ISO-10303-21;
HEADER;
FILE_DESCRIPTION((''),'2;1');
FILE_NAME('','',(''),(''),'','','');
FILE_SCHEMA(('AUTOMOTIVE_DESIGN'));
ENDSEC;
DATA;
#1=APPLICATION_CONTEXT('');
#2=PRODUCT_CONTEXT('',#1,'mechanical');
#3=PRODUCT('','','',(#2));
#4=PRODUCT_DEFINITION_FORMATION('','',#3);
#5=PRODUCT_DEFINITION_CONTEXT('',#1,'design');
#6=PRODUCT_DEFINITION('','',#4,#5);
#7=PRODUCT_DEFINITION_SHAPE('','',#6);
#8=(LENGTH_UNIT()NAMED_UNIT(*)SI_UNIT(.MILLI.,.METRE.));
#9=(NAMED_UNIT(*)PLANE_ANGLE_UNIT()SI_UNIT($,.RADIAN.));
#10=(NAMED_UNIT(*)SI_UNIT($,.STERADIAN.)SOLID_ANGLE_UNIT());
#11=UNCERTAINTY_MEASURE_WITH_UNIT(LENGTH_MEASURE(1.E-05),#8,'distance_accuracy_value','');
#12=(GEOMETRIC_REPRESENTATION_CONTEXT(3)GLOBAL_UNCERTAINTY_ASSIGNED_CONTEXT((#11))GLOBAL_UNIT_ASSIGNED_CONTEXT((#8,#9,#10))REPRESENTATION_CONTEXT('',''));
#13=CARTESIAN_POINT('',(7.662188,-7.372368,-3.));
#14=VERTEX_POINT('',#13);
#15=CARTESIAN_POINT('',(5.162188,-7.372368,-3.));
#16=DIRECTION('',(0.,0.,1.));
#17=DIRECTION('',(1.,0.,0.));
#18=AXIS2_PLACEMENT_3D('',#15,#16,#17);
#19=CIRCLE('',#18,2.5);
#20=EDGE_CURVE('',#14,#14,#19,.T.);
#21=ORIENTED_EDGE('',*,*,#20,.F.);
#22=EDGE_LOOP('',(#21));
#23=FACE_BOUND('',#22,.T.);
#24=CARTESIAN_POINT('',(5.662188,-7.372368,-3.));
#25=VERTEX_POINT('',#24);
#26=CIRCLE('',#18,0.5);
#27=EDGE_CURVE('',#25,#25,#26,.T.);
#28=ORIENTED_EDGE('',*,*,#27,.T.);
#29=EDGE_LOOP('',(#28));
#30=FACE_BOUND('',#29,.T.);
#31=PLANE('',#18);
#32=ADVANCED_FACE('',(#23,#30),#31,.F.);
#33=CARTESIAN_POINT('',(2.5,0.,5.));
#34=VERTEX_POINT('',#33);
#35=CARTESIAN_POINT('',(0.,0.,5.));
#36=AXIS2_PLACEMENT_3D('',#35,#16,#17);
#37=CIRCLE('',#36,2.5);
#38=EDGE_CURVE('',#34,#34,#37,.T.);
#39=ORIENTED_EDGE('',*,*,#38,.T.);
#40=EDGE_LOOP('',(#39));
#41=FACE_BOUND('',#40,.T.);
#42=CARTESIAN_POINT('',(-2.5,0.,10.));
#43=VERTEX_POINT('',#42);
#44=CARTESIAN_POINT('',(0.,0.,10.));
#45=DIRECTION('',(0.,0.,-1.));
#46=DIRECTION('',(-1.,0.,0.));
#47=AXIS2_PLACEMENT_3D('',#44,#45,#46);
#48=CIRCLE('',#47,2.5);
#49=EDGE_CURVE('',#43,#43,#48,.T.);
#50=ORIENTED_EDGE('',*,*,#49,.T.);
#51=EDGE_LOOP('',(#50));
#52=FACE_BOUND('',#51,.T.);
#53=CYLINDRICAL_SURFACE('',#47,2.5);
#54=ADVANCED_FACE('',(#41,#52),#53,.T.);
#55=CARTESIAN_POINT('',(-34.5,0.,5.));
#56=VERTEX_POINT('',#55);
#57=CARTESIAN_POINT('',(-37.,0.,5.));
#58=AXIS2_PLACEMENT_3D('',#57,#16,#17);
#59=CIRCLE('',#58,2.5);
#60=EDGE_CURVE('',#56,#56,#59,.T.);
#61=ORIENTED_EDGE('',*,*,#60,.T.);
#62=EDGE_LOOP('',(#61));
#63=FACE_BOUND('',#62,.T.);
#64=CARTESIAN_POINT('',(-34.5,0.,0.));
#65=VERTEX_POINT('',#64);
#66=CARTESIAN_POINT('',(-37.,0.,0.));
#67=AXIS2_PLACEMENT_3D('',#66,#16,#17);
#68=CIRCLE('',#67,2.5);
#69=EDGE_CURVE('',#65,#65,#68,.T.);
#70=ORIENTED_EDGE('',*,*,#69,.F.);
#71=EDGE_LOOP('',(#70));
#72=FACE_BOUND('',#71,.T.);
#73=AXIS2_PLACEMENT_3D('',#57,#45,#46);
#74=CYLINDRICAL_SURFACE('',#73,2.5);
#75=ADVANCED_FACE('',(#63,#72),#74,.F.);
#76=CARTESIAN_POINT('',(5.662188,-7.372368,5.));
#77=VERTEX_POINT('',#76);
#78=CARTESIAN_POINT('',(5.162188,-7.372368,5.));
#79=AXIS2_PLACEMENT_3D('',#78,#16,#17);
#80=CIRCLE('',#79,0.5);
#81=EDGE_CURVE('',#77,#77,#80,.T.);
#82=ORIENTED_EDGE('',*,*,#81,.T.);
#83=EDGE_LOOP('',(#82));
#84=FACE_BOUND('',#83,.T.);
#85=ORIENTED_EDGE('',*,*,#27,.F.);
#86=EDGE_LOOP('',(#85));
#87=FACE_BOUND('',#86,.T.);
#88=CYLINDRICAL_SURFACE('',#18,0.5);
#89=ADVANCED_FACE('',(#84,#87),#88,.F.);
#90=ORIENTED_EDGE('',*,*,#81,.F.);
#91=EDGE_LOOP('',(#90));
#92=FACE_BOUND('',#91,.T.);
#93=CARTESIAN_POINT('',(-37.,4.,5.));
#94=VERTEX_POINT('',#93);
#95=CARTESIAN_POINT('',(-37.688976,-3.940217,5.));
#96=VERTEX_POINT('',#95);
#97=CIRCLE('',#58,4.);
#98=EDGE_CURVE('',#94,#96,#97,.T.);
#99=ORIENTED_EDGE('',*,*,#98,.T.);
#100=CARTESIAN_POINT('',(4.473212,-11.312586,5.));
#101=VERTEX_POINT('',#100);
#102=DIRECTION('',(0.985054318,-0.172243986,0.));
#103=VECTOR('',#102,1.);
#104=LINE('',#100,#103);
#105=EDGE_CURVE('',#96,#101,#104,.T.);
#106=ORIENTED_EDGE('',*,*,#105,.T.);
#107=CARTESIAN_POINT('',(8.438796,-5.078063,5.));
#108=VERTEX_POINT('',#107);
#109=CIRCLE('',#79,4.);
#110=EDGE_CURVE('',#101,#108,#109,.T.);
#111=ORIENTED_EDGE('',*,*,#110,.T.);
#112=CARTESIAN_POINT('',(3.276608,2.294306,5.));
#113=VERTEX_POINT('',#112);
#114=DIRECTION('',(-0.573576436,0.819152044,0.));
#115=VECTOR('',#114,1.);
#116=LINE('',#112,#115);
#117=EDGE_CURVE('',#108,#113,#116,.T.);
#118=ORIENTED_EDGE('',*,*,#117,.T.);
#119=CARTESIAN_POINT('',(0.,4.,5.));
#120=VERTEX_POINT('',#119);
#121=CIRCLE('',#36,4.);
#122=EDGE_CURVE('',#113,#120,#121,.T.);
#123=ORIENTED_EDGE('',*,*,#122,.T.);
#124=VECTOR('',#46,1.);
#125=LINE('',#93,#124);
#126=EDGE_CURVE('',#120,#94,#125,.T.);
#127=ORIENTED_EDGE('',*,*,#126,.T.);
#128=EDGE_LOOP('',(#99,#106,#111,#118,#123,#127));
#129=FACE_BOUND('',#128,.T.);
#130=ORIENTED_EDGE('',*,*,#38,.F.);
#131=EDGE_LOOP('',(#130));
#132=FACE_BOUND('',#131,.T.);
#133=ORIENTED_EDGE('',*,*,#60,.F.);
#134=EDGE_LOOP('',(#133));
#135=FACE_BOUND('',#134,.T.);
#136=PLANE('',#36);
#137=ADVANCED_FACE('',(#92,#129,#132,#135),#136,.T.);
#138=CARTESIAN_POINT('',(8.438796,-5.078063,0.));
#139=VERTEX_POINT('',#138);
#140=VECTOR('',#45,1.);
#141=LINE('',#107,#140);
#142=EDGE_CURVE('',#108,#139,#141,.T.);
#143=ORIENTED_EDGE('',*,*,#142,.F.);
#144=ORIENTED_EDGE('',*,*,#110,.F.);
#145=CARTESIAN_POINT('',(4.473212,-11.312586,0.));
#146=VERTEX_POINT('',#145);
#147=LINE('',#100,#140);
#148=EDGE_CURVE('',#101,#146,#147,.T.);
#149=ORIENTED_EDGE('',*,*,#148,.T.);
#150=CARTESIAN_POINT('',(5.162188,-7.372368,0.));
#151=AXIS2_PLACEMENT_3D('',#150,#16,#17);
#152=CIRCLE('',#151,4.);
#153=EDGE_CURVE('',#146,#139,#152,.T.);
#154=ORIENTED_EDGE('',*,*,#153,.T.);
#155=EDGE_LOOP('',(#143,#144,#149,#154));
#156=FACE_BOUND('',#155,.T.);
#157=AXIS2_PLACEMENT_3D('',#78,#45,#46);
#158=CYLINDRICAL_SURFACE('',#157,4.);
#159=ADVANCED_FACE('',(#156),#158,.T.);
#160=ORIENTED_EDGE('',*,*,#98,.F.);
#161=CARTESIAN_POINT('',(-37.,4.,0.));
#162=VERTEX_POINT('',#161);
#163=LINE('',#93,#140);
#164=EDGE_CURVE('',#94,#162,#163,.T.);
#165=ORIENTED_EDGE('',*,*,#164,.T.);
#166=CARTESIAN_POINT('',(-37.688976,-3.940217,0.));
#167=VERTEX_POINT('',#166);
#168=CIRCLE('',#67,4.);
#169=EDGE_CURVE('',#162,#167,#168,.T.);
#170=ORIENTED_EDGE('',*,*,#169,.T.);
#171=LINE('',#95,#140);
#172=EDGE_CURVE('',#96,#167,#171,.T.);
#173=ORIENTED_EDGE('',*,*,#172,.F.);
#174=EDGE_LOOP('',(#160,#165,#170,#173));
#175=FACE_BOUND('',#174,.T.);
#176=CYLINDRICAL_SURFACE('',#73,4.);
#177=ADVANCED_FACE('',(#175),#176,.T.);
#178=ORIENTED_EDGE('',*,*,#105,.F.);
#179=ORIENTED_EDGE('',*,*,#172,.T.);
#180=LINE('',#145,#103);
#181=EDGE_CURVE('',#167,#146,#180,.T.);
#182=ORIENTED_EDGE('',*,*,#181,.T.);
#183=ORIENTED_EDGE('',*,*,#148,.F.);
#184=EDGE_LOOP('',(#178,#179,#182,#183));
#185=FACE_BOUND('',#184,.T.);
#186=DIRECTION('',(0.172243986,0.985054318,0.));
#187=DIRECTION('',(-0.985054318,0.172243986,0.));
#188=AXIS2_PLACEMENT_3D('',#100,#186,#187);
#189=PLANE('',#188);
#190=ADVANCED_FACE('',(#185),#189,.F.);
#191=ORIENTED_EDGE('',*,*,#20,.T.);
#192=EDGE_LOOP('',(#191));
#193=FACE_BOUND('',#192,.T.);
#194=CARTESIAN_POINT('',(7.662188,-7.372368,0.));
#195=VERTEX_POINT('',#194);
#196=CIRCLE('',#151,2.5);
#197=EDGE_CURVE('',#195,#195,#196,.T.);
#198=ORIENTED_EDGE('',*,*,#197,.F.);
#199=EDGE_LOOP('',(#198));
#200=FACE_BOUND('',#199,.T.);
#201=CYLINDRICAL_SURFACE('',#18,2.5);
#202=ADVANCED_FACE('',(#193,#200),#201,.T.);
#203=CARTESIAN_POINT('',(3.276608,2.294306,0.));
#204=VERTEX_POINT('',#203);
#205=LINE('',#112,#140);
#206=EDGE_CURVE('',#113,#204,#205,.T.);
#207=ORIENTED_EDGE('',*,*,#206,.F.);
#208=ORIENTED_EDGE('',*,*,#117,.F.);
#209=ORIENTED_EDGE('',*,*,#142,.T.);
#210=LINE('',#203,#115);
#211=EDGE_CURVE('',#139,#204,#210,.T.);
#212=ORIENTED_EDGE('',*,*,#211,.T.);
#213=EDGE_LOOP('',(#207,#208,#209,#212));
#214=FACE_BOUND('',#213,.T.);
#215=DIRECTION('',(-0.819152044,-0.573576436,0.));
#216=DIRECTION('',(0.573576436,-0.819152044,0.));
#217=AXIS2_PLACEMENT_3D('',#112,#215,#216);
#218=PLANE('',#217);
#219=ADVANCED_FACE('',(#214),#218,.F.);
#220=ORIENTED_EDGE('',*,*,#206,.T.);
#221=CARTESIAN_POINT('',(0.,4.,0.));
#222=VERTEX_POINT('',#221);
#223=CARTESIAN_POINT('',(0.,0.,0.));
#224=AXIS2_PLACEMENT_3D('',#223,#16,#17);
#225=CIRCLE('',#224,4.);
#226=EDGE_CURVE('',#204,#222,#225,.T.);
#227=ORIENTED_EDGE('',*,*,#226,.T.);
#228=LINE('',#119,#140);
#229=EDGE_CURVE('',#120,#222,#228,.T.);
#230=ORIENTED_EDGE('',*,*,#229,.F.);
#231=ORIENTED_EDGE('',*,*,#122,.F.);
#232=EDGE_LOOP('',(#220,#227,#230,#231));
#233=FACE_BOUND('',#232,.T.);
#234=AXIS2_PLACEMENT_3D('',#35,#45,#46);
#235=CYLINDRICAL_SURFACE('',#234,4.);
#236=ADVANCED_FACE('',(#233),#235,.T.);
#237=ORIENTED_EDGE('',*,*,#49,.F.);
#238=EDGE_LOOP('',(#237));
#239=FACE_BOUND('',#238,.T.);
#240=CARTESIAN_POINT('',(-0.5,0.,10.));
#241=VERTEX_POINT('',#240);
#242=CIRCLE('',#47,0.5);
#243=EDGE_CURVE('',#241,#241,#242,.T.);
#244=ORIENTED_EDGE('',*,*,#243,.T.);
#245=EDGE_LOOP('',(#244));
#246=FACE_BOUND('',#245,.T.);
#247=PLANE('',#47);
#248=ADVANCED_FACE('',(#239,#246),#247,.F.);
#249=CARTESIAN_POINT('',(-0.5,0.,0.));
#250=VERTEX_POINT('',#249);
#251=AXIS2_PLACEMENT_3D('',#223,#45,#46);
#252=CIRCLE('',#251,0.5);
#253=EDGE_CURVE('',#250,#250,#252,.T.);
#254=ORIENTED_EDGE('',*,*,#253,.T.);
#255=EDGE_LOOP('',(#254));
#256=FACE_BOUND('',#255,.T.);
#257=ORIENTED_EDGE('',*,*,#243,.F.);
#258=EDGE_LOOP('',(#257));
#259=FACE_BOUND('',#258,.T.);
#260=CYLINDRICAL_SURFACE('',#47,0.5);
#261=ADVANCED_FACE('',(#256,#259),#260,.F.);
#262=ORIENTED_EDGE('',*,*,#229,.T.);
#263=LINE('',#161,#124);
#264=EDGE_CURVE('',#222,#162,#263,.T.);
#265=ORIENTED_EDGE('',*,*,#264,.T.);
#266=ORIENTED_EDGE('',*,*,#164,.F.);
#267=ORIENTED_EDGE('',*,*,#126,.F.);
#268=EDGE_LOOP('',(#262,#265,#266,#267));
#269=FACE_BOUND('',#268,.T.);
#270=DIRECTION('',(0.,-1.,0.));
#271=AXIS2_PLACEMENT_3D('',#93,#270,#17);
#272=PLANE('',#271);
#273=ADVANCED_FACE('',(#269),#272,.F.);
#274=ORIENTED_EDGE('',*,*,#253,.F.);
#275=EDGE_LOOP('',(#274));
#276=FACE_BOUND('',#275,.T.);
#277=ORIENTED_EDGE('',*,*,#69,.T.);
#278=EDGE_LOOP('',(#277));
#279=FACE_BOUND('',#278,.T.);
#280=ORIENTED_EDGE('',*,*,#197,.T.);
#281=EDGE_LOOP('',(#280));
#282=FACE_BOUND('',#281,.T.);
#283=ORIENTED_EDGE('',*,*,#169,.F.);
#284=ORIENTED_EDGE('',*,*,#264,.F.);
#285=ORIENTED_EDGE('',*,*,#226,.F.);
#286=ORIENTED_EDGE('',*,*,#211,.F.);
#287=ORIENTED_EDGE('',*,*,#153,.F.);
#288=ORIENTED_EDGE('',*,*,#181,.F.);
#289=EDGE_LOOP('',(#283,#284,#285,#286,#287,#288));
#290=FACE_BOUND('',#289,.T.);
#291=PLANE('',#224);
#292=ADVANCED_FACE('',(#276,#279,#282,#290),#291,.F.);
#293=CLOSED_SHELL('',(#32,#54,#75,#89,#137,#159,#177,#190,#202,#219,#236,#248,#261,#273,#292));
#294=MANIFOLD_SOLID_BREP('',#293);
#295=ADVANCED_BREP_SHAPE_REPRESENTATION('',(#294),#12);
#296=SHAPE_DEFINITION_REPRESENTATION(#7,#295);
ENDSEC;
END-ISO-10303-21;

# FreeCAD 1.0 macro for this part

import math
import FreeCAD as App
import Part
import Sketcher
from FreeCAD import Vector
Q = App.Units.Quantity

doc = App.newDocument("Part")
body = doc.addObject("PartDesign::Body", "Body")

# Sketch on XY plane
sketch1 = doc.addObject("Sketcher::SketchObject", "Sketch")
body.addObject(sketch1)
sketch1.AttachmentSupport = (doc.XY_Plane, [""])
sketch1.MapMode = "FlatFace"
sketch1.addGeometry(Part.LineSegment(Vector(0, 4, 0), Vector(-37, 4, 0)), False)
sketch1.addGeometry(Part.ArcOfCircle(Part.Circle(Vector(-37, 0, 0), Vector(0, 0, 1), 4), math.radians(90), math.radians(260)), False)
sketch1.addGeometry(Part.LineSegment(Vector(-37.7, -3.9, 0), Vector(4.5, -11.3, 0)), False)
sketch1.addGeometry(Part.ArcOfCircle(Part.Circle(Vector(5.2, -7.4, 0), Vector(0, 0, 1), 4), math.radians(-100), math.radians(35)), False)
sketch1.addGeometry(Part.LineSegment(Vector(8.4, -5.1, 0), Vector(3.3, 2.3, 0)), False)
sketch1.addGeometry(Part.ArcOfCircle(Part.Circle(Vector(0, 0, 0), Vector(0, 0, 1), 4), math.radians(35), math.radians(90)), False)
sketch1.addGeometry(Part.Circle(Vector(5.2, -7.4, 0), Vector(0, 0, 1), 2.5), False)
sketch1.addGeometry(Part.Circle(Vector(0, 0, 0), Vector(0, 0, 1), 2.5), False)
sketch1.addGeometry(Part.Circle(Vector(-37, 0, 0), Vector(0, 0, 1), 2.5), False)
sketch1.addConstraint(Sketcher.Constraint("Tangent", 0, 2, 1, 1))
sketch1.addConstraint(Sketcher.Constraint("Tangent", 1, 2, 2, 1))
sketch1.addConstraint(Sketcher.Constraint("Tangent", 2, 2, 3, 1))
sketch1.addConstraint(Sketcher.Constraint("Tangent", 3, 2, 4, 1))
sketch1.addConstraint(Sketcher.Constraint("Tangent", 4, 2, 5, 1))
sketch1.addConstraint(Sketcher.Constraint("Tangent", 5, 2, 0, 1))
sketch1.addConstraint(Sketcher.Constraint("Horizontal", 0))
sketch1.addConstraint(Sketcher.Constraint("Coincident", 5, 3, -1, 1))
sketch1.addConstraint(Sketcher.Constraint("Coincident", 7, 3, -1, 1))
sketch1.addConstraint(Sketcher.Constraint("Coincident", 6, 3, 3, 3))
sketch1.addConstraint(Sketcher.Constraint("Coincident", 8, 3, 1, 3))
sketch1.addConstraint(Sketcher.Constraint("Equal", 1, 3))
sketch1.addConstraint(Sketcher.Constraint("Equal", 3, 5))
sketch1.addConstraint(Sketcher.Constraint("Equal", 6, 7))
sketch1.addConstraint(Sketcher.Constraint("Equal", 7, 8))
sketch1.addConstraint(Sketcher.Constraint("Diameter", 6, 5.0))
sketch1.addConstraint(Sketcher.Constraint("Radius", 1, 4.0))
sketch1.addConstraint(Sketcher.Constraint("DistanceX", 0, 2, 0, 1, 37.0))
sketch1.addConstraint(Sketcher.Constraint("Angle", 4, Q("125 deg")))
sketch1.addConstraint(Sketcher.Constraint("Distance", 4, 9.0))
pad1 = doc.addObject("PartDesign::Pad", "Pad")
body.addObject(pad1)
pad1.Profile = sketch1
pad1.Length = 5

# Sketch on XY plane
sketch2 = doc.addObject("Sketcher::SketchObject", "Sketch001")
body.addObject(sketch2)
sketch2.AttachmentSupport = (doc.XY_Plane, [""])
sketch2.MapMode = "FlatFace"
sketch2.AttachmentOffset = App.Placement(Vector(0, 0, -3), App.Rotation())
sketch2.addGeometry(Part.Circle(Vector(5.2, -7.4, 0), Vector(0, 0, 1), 2.5), False)
sketch2.addGeometry(Part.Circle(Vector(5.2, -7.4, 0), Vector(0, 0, 1), 0.5), False)
sketch2.addConstraint(Sketcher.Constraint("Coincident", 1, 3, 0, 3))
sketch2.addConstraint(Sketcher.Constraint("Diameter", 0, 5.0))
sketch2.addConstraint(Sketcher.Constraint("Diameter", 1, 1.0))
sketch2.addConstraint(Sketcher.Constraint("DistanceY", 0, 3, -1, 1, 7.372368))
sketch2.addConstraint(Sketcher.Constraint("DistanceX", -1, 1, 0, 3, 5.162188))
pad2 = doc.addObject("PartDesign::Pad", "Pad001")
body.addObject(pad2)
pad2.Profile = sketch2
pad2.Length = 8

# Sketch on XY plane
sketch3 = doc.addObject("Sketcher::SketchObject", "Sketch002")
body.addObject(sketch3)
sketch3.AttachmentSupport = (doc.XY_Plane, [""])
sketch3.MapMode = "FlatFace"
sketch3.addGeometry(Part.Circle(Vector(0, 0, 0), Vector(0, 0, 1), 2.5), False)
sketch3.addGeometry(Part.Circle(Vector(0, 0, 0), Vector(0, 0, 1), 0.5), False)
sketch3.addConstraint(Sketcher.Constraint("Coincident", 0, 3, -1, 1))
sketch3.addConstraint(Sketcher.Constraint("Coincident", 1, 3, -1, 1))
sketch3.addConstraint(Sketcher.Constraint("Diameter", 0, 5.0))
sketch3.addConstraint(Sketcher.Constraint("Diameter", 1, 1.0))
pad3 = doc.addObject("PartDesign::Pad", "Pad002")
body.addObject(pad3)
pad3.Profile = sketch3
pad3.Length = 10

doc.recompute()
